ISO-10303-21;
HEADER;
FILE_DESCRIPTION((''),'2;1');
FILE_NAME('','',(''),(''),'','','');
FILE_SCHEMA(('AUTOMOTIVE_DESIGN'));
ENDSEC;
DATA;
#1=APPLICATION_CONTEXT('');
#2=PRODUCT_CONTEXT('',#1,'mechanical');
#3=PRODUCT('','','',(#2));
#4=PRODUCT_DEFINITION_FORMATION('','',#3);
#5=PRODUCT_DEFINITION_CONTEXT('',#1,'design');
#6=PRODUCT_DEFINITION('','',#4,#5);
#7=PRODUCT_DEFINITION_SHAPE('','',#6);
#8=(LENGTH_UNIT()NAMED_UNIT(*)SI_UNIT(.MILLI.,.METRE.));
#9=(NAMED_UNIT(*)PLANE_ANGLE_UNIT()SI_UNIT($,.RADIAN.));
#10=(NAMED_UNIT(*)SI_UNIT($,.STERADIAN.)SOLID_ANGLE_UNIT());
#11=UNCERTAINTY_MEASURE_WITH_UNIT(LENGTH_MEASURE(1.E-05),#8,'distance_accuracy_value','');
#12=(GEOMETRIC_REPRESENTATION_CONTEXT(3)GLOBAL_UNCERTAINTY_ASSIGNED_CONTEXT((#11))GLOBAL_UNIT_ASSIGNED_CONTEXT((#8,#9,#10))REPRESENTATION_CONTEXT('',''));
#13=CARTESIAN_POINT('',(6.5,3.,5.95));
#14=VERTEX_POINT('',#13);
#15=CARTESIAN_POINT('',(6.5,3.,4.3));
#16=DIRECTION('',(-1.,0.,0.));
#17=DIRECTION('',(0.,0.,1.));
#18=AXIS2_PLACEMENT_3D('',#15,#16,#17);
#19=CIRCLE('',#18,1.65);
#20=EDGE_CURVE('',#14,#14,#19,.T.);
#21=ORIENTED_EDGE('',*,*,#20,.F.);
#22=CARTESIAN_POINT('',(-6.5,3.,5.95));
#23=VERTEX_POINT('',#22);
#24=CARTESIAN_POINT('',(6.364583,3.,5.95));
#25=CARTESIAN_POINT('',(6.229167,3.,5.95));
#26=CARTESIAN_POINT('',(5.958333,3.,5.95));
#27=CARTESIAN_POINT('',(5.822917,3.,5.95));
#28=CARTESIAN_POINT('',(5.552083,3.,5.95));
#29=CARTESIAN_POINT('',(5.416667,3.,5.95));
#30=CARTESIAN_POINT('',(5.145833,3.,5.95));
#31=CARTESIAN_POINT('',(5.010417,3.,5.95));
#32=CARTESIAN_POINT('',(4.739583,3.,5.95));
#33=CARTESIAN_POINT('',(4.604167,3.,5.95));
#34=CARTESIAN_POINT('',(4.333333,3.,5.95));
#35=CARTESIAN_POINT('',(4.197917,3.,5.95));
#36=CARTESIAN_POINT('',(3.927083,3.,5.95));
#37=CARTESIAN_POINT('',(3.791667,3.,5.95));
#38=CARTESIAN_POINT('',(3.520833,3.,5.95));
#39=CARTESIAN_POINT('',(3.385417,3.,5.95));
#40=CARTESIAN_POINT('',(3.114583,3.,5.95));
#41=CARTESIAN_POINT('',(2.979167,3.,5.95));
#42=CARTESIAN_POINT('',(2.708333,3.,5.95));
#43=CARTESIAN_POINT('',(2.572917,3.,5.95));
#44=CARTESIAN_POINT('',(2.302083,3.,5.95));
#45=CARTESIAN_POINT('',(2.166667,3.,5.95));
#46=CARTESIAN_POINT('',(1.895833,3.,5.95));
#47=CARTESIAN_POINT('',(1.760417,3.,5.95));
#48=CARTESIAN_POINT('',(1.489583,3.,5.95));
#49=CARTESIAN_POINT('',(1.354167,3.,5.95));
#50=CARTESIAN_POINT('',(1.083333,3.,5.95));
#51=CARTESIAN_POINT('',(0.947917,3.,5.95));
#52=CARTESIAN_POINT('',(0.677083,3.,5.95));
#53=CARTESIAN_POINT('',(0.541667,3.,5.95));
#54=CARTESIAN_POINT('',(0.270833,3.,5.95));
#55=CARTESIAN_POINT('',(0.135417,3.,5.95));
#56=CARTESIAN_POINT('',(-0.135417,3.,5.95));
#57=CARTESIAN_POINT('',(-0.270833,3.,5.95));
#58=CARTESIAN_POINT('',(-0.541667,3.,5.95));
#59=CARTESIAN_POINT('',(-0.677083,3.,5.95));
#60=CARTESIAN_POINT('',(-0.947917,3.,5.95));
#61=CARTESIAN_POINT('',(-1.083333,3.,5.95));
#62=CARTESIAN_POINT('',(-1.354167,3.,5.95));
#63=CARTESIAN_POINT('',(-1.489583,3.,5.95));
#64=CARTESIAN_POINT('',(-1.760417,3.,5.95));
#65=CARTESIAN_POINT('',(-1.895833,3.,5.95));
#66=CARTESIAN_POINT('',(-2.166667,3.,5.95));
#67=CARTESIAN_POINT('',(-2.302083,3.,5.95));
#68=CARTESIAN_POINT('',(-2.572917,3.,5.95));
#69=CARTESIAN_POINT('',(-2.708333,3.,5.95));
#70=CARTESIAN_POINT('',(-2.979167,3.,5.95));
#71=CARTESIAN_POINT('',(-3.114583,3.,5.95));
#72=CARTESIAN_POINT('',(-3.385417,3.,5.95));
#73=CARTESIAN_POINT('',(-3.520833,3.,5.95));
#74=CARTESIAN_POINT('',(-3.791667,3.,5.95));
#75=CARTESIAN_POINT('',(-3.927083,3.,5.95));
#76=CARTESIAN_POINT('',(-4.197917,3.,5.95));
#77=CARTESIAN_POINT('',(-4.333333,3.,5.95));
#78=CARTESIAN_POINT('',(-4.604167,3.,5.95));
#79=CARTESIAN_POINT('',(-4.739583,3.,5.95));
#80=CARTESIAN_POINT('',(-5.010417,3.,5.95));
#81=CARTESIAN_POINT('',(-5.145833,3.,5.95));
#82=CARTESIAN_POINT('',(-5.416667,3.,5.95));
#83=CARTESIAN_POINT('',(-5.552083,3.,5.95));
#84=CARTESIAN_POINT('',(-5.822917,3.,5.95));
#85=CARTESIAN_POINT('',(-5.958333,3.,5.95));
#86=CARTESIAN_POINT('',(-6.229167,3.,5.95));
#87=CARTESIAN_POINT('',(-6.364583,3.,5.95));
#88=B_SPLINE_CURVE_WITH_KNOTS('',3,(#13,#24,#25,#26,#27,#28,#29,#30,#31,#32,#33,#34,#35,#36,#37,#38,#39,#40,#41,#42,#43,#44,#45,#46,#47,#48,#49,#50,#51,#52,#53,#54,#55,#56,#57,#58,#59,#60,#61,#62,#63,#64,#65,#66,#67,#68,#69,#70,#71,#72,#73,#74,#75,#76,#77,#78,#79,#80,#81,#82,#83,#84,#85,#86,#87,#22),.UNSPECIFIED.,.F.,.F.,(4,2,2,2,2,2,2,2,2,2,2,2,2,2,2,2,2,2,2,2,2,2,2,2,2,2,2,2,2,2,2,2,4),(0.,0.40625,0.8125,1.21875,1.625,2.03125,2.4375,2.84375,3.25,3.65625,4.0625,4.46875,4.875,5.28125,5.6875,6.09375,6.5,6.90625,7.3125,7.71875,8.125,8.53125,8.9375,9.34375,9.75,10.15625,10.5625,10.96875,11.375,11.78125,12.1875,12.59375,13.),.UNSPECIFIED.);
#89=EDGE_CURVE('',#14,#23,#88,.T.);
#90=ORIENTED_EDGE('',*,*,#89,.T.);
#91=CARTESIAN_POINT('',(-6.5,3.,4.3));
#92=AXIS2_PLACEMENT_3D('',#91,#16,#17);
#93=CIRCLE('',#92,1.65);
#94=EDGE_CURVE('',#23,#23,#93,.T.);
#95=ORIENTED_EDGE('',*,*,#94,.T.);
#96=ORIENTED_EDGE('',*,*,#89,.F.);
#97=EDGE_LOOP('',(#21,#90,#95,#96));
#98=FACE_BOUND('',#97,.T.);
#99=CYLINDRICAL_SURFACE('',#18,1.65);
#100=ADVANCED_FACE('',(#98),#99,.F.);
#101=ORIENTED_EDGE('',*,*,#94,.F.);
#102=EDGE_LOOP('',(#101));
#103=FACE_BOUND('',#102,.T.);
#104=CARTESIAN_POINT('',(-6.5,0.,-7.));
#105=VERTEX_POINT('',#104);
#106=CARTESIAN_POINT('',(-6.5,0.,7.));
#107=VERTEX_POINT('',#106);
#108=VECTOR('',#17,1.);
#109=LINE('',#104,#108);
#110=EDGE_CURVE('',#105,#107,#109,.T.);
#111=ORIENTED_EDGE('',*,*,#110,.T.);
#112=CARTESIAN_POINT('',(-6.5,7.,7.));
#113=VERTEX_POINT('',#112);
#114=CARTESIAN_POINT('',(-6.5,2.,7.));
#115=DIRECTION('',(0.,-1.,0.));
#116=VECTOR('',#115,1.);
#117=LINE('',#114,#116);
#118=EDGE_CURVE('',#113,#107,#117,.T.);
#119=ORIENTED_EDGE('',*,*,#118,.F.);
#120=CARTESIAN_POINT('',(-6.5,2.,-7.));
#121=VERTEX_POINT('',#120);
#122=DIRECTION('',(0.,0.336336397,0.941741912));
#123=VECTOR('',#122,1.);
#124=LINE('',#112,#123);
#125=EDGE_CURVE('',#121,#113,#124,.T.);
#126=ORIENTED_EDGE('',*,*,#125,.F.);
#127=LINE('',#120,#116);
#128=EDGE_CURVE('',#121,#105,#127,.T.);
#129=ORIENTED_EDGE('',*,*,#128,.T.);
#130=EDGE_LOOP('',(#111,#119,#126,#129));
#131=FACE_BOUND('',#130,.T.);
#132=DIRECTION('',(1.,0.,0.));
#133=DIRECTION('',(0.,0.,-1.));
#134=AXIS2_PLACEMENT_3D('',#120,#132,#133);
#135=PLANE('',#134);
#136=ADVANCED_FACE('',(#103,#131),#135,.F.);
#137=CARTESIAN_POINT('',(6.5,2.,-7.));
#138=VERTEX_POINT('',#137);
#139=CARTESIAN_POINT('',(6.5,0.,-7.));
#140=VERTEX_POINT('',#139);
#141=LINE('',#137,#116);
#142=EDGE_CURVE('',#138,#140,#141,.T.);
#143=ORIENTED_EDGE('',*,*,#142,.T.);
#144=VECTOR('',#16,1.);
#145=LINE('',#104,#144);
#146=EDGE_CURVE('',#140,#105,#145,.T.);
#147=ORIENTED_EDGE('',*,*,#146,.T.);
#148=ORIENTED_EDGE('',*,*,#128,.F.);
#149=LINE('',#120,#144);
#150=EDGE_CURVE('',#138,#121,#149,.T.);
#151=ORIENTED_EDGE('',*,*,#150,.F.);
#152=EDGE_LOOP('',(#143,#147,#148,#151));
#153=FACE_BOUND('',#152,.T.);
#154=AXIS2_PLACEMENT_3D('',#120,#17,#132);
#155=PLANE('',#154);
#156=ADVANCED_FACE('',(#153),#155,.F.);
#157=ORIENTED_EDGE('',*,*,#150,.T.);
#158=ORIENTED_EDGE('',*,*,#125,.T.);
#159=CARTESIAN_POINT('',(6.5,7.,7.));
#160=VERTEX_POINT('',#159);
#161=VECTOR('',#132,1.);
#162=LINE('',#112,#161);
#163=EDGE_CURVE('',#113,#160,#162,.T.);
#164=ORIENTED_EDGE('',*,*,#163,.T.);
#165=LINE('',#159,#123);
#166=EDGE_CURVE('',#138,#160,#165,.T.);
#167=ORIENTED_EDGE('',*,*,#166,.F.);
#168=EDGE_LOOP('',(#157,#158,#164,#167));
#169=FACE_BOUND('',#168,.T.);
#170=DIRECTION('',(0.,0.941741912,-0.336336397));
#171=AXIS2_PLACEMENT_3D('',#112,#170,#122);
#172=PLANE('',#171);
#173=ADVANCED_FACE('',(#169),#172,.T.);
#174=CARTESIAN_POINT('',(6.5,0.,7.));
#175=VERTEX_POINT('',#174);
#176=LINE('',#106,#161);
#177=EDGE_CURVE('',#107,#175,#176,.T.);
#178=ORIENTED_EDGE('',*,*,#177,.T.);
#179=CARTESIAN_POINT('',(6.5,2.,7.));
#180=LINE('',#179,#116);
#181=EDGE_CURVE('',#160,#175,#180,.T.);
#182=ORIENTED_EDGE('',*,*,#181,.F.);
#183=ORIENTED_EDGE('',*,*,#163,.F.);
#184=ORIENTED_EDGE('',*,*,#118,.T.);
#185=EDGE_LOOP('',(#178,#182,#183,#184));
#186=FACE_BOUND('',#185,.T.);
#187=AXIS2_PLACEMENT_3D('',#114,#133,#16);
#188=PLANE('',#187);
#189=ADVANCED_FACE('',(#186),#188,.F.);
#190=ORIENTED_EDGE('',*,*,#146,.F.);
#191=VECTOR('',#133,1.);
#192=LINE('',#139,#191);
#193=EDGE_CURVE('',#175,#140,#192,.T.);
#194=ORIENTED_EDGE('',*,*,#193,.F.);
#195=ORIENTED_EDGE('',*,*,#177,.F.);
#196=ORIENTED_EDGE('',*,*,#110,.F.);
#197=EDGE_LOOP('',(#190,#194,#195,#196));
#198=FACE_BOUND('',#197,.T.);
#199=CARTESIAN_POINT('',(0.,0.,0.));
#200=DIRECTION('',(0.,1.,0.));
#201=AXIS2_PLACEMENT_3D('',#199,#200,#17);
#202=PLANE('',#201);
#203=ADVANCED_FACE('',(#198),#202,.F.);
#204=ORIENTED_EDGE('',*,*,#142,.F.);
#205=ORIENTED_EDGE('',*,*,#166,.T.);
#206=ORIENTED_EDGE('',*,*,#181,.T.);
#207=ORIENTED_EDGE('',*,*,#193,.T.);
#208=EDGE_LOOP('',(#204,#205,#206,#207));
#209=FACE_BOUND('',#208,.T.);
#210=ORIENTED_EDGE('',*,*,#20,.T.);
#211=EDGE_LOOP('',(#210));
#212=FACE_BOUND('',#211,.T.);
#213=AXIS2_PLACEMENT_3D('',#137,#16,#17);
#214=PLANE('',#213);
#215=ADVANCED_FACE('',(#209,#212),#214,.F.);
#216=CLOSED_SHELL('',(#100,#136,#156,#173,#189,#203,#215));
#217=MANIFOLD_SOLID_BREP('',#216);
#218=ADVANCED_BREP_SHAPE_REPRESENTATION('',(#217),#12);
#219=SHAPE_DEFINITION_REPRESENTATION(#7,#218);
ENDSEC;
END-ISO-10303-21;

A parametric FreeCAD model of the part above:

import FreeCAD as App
import Part
import Sketcher

V = App.Vector


def add_polygon(sketch, points):
    """Adds a closed chain of lines whose ends are joined by coincident constraints."""
    first, n = sketch.GeometryCount, len(points)
    for a, b in zip(points, points[1:] + points[:1]):
        sketch.addGeometry(Part.LineSegment(App.Vector(*a, 0), App.Vector(*b, 0)), False)
    for i in range(n):
        sketch.addConstraint(Sketcher.Constraint("Coincident", first + i, 2, first + (i + 1) % n, 1))

doc = App.newDocument("Part")
body = doc.addObject("PartDesign::Body", "Body")

sketch1 = body.newObject("Sketcher::SketchObject", "Sketch")
sketch1.AttachmentSupport = (doc.getObject("XZ_Plane"), [""])
sketch1.MapMode = "FlatFace"
add_polygon(sketch1, [(-6, -7), (-6, 7), (6, 7), (6, -7)])
sketch1.addConstraint([
    Sketcher.Constraint("Vertical", 0),
    Sketcher.Constraint("Horizontal", 1),
    Sketcher.Constraint("Vertical", 2),
    Sketcher.Constraint("Horizontal", 3),
    Sketcher.Constraint("Symmetric", 0, 2, 2, 2, -1, 1),
    Sketcher.Constraint("DistanceX", 1, 1, 1, 2, 13.0),
    Sketcher.Constraint("DistanceY", 0, 1, 0, 2, 14.0),
])
pad1 = body.newObject("PartDesign::Pad", "Pad")
pad1.Profile = sketch1
pad1.Length = 2
pad1.Reversed = True

sketch2 = body.newObject("Sketcher::SketchObject", "Sketch001")
sketch2.AttachmentSupport = (doc.getObject("YZ_Plane"), [""])
sketch2.MapMode = "FlatFace"
sketch2.AttachmentOffset = App.Placement(V(0, 0, 6.5), App.Rotation())
add_polygon(sketch2, [(7, 7), (2, 7), (2, -7)])
sketch2.addConstraint([
    Sketcher.Constraint("Horizontal", 0),
    Sketcher.Constraint("Vertical", 1),
    Sketcher.Constraint("DistanceX", 0, 2, 0, 1, 5.0),
    Sketcher.Constraint("DistanceY", 1, 2, 1, 1, 14.0),
    Sketcher.Constraint("DistanceX", -1, 1, 0, 2, 2.0),
    Sketcher.Constraint("DistanceY", -1, 1, 0, 2, 7.0),
])
pad2 = body.newObject("PartDesign::Pad", "Pad001")
pad2.Profile = sketch2
pad2.Length = 13
pad2.Reversed = True

sketch3 = body.newObject("Sketcher::SketchObject", "Sketch002")
sketch3.AttachmentSupport = (doc.getObject("YZ_Plane"), [""])
sketch3.MapMode = "FlatFace"
sketch3.AttachmentOffset = App.Placement(V(0, 0, -6.5), App.Rotation())
sketch3.addGeometry(Part.Circle(V(3, 4.3, 0), V(0, 0, 1), 1.6), False)
sketch3.addConstraint([
    Sketcher.Constraint("Diameter", 0, 3.3),
    Sketcher.Constraint("DistanceX", -1, 1, 0, 3, 3.0),
    Sketcher.Constraint("DistanceY", -1, 1, 0, 3, 4.3),
])
pocket1 = body.newObject("PartDesign::Pocket", "Pocket")
pocket1.Profile = sketch3
pocket1.Length = 13
pocket1.Reversed = True

doc.recompute()
